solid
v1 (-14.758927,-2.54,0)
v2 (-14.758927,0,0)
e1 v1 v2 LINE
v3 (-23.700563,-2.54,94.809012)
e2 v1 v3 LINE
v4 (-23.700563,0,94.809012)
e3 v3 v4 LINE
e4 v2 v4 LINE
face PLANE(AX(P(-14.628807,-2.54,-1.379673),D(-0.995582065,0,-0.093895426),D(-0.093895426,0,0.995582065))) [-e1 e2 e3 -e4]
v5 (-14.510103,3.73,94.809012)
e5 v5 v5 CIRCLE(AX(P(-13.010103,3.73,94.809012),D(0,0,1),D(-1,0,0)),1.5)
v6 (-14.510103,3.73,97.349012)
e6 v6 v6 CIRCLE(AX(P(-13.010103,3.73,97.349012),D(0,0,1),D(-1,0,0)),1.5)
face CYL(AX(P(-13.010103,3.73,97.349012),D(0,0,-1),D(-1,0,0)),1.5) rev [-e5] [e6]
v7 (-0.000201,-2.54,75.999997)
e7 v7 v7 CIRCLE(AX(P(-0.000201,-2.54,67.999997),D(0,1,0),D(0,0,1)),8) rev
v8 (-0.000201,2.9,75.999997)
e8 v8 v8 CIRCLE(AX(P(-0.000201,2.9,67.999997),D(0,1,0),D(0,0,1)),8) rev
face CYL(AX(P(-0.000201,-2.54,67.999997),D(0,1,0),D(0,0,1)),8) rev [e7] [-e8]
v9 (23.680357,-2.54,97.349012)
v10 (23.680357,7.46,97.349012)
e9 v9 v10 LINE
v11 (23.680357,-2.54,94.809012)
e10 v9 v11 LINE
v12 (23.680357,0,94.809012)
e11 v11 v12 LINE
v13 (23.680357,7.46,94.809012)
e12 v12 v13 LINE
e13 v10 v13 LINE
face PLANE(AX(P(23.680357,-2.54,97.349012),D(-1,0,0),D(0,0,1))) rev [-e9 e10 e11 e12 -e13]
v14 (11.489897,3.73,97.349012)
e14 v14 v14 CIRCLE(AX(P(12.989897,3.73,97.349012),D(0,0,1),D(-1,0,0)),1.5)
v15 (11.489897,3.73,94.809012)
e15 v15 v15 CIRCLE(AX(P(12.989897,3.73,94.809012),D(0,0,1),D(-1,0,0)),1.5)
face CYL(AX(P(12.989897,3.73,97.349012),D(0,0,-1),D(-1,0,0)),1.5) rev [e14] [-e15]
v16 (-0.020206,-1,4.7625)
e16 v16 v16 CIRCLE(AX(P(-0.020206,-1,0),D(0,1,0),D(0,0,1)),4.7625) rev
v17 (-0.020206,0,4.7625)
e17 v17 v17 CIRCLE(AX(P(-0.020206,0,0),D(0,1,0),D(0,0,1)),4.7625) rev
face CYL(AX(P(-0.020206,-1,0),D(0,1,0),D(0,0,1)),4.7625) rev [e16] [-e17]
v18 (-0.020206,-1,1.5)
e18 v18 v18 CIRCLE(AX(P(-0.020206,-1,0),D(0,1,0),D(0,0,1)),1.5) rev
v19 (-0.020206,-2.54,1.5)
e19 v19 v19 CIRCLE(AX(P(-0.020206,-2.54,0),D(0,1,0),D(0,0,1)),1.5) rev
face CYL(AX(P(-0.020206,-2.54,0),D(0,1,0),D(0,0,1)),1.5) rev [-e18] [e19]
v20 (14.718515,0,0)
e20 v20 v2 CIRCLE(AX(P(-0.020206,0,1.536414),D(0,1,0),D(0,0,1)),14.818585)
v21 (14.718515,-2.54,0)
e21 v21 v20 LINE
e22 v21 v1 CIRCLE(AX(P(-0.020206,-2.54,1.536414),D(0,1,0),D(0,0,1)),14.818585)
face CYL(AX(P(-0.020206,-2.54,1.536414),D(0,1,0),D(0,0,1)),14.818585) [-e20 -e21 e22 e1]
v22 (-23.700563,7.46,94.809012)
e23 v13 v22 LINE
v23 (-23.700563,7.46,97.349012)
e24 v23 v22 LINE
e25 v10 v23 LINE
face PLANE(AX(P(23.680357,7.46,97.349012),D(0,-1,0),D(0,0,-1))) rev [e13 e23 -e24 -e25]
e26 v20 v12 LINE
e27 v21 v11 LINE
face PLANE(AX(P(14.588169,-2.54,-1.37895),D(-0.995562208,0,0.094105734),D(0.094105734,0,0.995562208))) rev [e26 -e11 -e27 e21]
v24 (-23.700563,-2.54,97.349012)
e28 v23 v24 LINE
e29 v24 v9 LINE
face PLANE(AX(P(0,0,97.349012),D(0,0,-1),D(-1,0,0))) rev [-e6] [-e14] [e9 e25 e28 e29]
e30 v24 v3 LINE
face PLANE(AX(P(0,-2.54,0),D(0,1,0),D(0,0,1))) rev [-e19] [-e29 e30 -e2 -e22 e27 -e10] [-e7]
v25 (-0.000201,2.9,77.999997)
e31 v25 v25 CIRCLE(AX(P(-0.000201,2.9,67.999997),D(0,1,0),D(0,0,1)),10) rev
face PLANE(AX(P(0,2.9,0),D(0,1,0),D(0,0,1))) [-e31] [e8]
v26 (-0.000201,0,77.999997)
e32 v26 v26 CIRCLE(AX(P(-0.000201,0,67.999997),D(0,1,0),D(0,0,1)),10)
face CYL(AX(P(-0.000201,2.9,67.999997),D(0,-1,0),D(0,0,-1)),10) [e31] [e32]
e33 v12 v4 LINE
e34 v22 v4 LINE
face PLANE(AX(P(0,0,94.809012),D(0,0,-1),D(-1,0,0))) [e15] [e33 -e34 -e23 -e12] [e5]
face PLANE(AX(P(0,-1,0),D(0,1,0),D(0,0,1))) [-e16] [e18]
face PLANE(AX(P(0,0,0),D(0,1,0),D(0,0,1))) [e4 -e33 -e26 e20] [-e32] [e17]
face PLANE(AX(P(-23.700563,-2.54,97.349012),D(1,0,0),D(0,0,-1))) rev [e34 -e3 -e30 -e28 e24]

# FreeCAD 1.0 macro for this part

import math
import FreeCAD as App
import Part
import Sketcher

V = App.Vector

doc = App.newDocument("Part")
body = doc.addObject("PartDesign::Body", "Body")

# Sketch on XZ plane
sketch1 = body.newObject("Sketcher::SketchObject", "Sketch")
sketch1.AttachmentSupport = (doc.getObject("XZ_Plane"), [""])
sketch1.MapMode = "FlatFace"
sketch1.addGeometry([
    Part.LineSegment(V(14.7, 0, 0), V(23.7, 94.8, 0)),  # 0
    Part.LineSegment(V(23.7, 94.8, 0), V(-23.7, 94.8, 0)),  # 1
    Part.LineSegment(V(-23.7, 94.8, 0), V(-14.8, 0, 0)),  # 2
    Part.ArcOfCircle(Part.Circle(V(0, 1.5, 0), V(0, 0, 1), 14.8), math.radians(-174), math.radians(-6)),  # 3
    Part.Circle(V(0, 0, 0), V(0, 0, 1), 1.5),  # 4
    Part.Circle(V(0, 68, 0), V(0, 0, 1), 8),  # 5
], False)
sketch1.addConstraint([
    Sketcher.Constraint("Coincident", 0, 2, 1, 1),
    Sketcher.Constraint("Coincident", 1, 2, 2, 1),
    Sketcher.Constraint("Coincident", 2, 2, 3, 1),
    Sketcher.Constraint("Coincident", 3, 2, 0, 1),
    Sketcher.Constraint("Horizontal", 1),
    Sketcher.Constraint("PointOnObject", 4, 3, -1),
    Sketcher.Constraint("PointOnObject", 2, 2, -1),
    Sketcher.Constraint("PointOnObject", 3, 2, -1),
    Sketcher.Constraint("Vertical", 3, 3, 4, 3),
    Sketcher.Constraint("Diameter", 4, 3.0),
    Sketcher.Constraint("Diameter", 5, 16.0),
    Sketcher.Constraint("Radius", 3, 14.818585),
    Sketcher.Constraint("DistanceX", 1, 2, 1, 1, 47.380921),
    Sketcher.Constraint("DistanceX", 5, 3, -1, 1, 0.000201),
    Sketcher.Constraint("DistanceY", 3, 3, 0, 2, 93.272598),
    Sketcher.Constraint("Distance", 0, 95.23163),
    Sketcher.Constraint("Distance", 2, 95.22973),
    Sketcher.Constraint("DistanceX", 3, 3, -1, 1, 0.020206),
    Sketcher.Constraint("DistanceY", -1, 1, 5, 3, 67.999997),
])
pad1 = body.newObject("PartDesign::Pad", "Pad")
pad1.Profile = sketch1
pad1.Length = 2.54

# Sketch on XY plane
sketch2 = body.newObject("Sketcher::SketchObject", "Sketch001")
sketch2.AttachmentSupport = (doc.getObject("XY_Plane"), [""])
sketch2.MapMode = "FlatFace"
sketch2.AttachmentOffset = App.Placement(V(0, 0, 94.809012), App.Rotation())
sketch2.addGeometry([
    Part.LineSegment(V(-23.7, 7.5, 0), V(-23.7, -2.5, 0)),  # 0
    Part.LineSegment(V(-23.7, -2.5, 0), V(23.7, -2.5, 0)),  # 1
    Part.LineSegment(V(23.7, -2.5, 0), V(23.7, 7.5, 0)),  # 2
    Part.LineSegment(V(23.7, 7.5, 0), V(-23.7, 7.5, 0)),  # 3
    Part.Circle(V(-13, 3.7, 0), V(0, 0, 1), 1.5),  # 4
    Part.Circle(V(13, 3.7, 0), V(0, 0, 1), 1.5),  # 5
], False)
sketch2.addConstraint([
    Sketcher.Constraint("Coincident", 0, 2, 1, 1),
    Sketcher.Constraint("Coincident", 1, 2, 2, 1),
    Sketcher.Constraint("Coincident", 2, 2, 3, 1),
    Sketcher.Constraint("Coincident", 3, 2, 0, 1),
    Sketcher.Constraint("Vertical", 0),
    Sketcher.Constraint("Horizontal", 1),
    Sketcher.Constraint("Vertical", 2),
    Sketcher.Constraint("Horizontal", 3),
    Sketcher.Constraint("Equal", 4, 5),
    Sketcher.Constraint("Horizontal", 4, 3, 5, 3),
    Sketcher.Constraint("Diameter", 4, 3.0),
    Sketcher.Constraint("DistanceY", 0, 2, 0, 1, 10.0),
    Sketcher.Constraint("DistanceX", 4, 3, 5, 3, 26.0),
    Sketcher.Constraint("DistanceY", -1, 1, 4, 3, 3.73),
    Sketcher.Constraint("DistanceY", 0, 2, -1, 1, 2.54),
    Sketcher.Constraint("DistanceX", 1, 1, 1, 2, 47.380921),
    Sketcher.Constraint("DistanceX", 0, 2, 4, 3, 10.69046),
    Sketcher.Constraint("DistanceX", 4, 3, -1, 1, 13.010103),
])
pad2 = body.newObject("PartDesign::Pad", "Pad001")
pad2.Profile = sketch2
pad2.Length = 2.54

# Sketch on XZ plane
sketch3 = body.newObject("Sketcher::SketchObject", "Sketch002")
sketch3.AttachmentSupport = (doc.getObject("XZ_Plane"), [""])
sketch3.MapMode = "FlatFace"
sketch3.addGeometry([
    Part.Circle(V(0, 0, 0), V(0, 0, 1), 4.8),
    Part.Circle(V(0, 0, 0), V(0, 0, 1), 1.5),
    Part.Circle(V(0, 68, 0), V(0, 0, 1), 8),
    Part.Circle(V(0, 68, 0), V(0, 0, 1), 6.5),
], False)
sketch3.addConstraint([
    Sketcher.Constraint("Coincident", 1, 3, 0, 3),
    Sketcher.Constraint("Coincident", 3, 3, 2, 3),
    Sketcher.Constraint("PointOnObject", 0, 3, -1),
    Sketcher.Constraint("Diameter", 1, 3.0),
    Sketcher.Constraint("Diameter", 2, 16.0),
    Sketcher.Constraint("Diameter", 3, 13.0),
    Sketcher.Constraint("Diameter", 0, 9.525),
    Sketcher.Constraint("DistanceX", 2, 3, -1, 1, 0.000201),
    Sketcher.Constraint("DistanceX", 0, 3, -1, 1, 0.020206),
    Sketcher.Constraint("DistanceY", -1, 1, 2, 3, 67.999997),
])
pocket1 = body.newObject("PartDesign::Pocket", "Pocket")
pocket1.Profile = sketch3
pocket1.Length = 1
pocket1.Reversed = True

# Sketch on XZ plane
sketch4 = body.newObject("Sketcher::SketchObject", "Sketch003")
sketch4.AttachmentSupport = (doc.getObject("XZ_Plane"), [""])
sketch4.MapMode = "FlatFace"
sketch4.addGeometry([
    Part.Circle(V(0, 68, 0), V(0, 0, 1), 10),
    Part.Circle(V(0, 68, 0), V(0, 0, 1), 8),
], False)
sketch4.addConstraint([
    Sketcher.Constraint("Coincident", 1, 3, 0, 3),
    Sketcher.Constraint("Diameter", 0, 20.0),
    Sketcher.Constraint("Diameter", 1, 16.0),
    Sketcher.Constraint("DistanceX", 0, 3, -1, 1, 0.000201),
    Sketcher.Constraint("DistanceY", -1, 1, 0, 3, 67.999997),
])
pad3 = body.newObject("PartDesign::Pad", "Pad002")
pad3.Profile = sketch4
pad3.Length = 2.9
pad3.Reversed = True

doc.recompute()
